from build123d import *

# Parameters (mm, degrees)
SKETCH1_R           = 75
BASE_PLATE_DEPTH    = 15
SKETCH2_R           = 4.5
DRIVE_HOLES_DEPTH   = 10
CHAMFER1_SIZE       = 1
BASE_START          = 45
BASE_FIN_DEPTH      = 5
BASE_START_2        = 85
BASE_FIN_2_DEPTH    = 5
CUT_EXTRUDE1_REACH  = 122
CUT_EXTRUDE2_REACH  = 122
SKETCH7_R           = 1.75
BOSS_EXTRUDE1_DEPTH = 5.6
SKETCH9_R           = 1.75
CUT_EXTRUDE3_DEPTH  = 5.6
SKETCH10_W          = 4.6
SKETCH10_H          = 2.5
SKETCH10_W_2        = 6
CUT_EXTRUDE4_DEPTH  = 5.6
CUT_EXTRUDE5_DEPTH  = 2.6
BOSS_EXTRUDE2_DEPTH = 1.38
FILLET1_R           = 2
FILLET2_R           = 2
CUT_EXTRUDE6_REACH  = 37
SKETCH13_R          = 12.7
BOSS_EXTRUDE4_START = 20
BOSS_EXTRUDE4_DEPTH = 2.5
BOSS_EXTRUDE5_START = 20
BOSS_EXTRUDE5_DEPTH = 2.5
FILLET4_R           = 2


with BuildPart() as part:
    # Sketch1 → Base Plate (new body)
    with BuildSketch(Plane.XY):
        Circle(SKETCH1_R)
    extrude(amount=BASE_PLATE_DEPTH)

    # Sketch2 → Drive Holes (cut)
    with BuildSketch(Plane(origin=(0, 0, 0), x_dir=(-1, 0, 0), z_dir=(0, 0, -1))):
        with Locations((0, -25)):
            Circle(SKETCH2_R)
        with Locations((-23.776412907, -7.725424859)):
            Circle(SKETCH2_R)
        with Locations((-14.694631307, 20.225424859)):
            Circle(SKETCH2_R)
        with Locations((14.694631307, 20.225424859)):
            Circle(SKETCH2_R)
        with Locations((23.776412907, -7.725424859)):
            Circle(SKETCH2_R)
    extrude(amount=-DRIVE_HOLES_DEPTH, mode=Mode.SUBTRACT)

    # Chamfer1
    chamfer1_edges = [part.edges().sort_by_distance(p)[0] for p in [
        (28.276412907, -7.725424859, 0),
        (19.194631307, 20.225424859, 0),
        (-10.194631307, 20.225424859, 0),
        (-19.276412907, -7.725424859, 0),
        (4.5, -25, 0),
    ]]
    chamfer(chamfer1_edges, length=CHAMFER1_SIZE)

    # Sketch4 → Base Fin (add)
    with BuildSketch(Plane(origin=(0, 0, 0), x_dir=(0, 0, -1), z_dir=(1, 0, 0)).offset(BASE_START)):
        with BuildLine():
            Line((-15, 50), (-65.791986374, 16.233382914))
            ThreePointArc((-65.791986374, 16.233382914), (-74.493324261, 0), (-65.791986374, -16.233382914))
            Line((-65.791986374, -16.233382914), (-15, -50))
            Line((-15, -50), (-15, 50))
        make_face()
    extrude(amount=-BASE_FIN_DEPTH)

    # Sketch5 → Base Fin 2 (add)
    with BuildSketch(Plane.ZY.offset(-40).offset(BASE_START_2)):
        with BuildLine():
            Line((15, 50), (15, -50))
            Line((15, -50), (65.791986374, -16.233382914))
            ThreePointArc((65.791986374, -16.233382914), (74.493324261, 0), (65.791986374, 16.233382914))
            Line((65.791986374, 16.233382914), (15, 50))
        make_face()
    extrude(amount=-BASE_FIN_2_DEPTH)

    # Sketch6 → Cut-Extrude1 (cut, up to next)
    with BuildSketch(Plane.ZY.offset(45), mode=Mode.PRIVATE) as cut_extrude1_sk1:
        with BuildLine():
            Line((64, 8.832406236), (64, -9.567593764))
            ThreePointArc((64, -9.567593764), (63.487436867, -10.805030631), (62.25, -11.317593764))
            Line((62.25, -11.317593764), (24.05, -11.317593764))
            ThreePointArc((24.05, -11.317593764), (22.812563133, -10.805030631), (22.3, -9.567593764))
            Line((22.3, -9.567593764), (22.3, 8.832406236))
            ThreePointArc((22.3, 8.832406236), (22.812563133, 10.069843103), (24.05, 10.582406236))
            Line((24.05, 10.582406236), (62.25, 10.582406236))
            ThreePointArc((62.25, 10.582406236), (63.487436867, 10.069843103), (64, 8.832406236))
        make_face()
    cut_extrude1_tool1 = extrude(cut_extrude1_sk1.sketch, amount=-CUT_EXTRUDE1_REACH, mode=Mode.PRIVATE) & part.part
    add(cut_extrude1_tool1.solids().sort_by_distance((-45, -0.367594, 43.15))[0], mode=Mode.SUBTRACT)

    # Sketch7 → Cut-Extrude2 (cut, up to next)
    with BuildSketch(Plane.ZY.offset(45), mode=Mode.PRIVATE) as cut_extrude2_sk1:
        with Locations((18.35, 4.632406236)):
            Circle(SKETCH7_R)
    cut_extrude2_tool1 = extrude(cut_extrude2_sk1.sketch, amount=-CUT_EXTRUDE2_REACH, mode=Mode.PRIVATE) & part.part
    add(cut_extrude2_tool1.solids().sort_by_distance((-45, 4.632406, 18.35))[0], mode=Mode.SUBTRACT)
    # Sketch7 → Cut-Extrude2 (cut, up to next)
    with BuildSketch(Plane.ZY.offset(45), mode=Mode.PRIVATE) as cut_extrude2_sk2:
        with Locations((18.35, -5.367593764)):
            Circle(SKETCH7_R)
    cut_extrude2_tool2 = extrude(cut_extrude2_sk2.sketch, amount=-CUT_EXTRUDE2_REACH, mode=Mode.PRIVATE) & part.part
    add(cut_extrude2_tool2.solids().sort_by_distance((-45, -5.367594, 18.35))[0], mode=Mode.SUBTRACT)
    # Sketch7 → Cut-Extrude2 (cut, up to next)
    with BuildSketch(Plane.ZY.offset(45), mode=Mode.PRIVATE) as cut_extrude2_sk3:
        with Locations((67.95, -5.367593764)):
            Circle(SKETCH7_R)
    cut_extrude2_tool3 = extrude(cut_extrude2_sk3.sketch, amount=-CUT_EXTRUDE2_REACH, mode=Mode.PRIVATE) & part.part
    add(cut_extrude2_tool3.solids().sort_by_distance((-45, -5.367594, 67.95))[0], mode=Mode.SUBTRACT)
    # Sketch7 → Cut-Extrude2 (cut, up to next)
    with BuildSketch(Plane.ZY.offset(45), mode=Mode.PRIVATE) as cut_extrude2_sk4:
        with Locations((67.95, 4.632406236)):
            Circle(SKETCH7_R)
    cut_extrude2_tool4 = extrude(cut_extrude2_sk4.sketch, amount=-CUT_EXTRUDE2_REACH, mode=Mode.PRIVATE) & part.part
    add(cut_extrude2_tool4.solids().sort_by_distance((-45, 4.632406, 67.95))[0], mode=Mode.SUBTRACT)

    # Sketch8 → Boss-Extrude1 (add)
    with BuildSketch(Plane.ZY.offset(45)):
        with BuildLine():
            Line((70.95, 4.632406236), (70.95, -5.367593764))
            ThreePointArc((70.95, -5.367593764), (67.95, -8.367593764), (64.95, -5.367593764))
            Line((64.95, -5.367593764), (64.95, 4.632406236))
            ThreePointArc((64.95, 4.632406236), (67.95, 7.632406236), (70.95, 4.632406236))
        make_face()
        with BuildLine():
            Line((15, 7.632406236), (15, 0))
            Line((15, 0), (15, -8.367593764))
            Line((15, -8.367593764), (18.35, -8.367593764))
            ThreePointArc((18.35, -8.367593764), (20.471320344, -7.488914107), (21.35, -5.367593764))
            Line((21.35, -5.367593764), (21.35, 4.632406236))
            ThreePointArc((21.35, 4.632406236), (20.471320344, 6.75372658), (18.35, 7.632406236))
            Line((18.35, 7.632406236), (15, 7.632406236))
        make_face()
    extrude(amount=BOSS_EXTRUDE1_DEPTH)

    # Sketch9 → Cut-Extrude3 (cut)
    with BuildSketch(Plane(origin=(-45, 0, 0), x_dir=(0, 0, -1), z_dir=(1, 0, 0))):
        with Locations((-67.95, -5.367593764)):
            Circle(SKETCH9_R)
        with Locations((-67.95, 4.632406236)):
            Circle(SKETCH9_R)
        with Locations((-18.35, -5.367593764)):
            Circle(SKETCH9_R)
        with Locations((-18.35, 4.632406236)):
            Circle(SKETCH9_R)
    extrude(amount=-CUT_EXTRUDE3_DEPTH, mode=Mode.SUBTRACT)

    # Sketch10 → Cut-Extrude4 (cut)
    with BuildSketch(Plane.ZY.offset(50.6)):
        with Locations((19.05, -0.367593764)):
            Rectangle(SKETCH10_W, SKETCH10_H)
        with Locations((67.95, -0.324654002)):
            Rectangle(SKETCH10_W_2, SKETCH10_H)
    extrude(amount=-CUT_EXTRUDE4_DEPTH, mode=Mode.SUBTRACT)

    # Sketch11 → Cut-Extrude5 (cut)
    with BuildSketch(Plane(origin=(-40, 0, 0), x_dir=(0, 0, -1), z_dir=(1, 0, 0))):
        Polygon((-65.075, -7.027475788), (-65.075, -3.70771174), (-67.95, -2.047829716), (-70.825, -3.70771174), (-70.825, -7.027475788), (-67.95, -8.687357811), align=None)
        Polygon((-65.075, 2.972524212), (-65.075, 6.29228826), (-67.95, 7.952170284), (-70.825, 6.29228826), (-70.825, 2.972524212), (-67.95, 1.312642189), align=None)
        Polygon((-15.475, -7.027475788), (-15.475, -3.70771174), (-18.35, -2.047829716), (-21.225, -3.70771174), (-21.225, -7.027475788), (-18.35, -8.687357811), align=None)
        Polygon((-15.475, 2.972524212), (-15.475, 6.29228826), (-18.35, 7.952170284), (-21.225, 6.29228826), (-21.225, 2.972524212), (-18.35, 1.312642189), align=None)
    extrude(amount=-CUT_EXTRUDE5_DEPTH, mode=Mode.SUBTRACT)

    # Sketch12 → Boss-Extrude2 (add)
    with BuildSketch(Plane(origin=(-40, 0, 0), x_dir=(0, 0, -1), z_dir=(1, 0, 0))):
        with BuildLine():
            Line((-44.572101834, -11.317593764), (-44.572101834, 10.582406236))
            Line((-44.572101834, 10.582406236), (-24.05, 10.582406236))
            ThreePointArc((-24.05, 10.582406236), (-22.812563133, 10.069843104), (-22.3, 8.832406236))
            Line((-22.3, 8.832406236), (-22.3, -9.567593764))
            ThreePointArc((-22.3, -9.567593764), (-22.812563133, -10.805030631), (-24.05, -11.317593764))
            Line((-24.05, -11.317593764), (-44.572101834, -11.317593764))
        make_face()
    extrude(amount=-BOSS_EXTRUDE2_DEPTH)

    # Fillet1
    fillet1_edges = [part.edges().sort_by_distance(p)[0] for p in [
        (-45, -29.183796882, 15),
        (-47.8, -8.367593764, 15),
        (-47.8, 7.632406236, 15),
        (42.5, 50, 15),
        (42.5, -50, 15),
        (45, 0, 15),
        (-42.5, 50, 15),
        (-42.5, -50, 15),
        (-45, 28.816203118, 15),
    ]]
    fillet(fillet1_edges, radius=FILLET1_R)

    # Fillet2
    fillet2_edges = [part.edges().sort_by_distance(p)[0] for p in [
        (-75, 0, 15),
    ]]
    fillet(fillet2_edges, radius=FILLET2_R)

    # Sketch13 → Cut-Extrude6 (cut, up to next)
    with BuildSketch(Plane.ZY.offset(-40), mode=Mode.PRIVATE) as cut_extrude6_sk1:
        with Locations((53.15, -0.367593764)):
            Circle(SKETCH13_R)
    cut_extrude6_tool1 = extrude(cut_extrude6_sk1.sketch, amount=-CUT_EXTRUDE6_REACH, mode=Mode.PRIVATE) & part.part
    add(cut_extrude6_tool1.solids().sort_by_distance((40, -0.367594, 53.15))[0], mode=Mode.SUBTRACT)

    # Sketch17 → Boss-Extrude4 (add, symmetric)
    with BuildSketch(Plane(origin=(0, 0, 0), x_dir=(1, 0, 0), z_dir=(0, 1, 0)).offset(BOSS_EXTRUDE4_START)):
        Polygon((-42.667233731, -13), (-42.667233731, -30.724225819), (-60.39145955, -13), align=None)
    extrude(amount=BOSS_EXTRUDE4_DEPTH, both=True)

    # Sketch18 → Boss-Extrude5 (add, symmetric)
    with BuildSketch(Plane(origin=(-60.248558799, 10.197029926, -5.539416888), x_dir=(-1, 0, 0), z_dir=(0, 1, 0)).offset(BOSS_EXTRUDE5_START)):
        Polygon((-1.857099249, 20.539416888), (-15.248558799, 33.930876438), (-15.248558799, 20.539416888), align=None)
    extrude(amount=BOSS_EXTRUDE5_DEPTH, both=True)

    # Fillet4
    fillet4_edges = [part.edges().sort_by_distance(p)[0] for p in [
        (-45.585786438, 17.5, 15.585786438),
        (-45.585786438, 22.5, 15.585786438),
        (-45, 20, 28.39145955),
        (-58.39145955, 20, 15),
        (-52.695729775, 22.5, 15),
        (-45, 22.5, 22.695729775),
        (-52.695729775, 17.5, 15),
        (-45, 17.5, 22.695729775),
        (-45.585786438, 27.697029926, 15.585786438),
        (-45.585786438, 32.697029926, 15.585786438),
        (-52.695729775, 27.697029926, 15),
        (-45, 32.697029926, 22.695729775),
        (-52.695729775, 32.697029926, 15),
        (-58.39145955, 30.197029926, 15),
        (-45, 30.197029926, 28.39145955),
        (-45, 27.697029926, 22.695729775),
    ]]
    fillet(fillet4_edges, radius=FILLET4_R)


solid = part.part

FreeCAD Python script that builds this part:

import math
import FreeCAD as App
import Part
import Sketcher
Q = App.Units.Quantity


def edges_at(feature, points):
    """Names of the edges that pass closest to the given points."""
    edges = feature.Shape.Edges
    near = lambda p: min(range(len(edges)), key=lambda i: edges[i].distToShape(Part.Vertex(*p))[0])
    return sorted({f"Edge{near(p) + 1}" for p in points})


def add_polygon(sketch, points):
    """Adds a closed chain of lines whose ends are joined by coincident constraints."""
    first, n = sketch.GeometryCount, len(points)
    for a, b in zip(points, points[1:] + points[:1]):
        sketch.addGeometry(Part.LineSegment(App.Vector(*a, 0), App.Vector(*b, 0)), False)
    for i in range(n):
        sketch.addConstraint(Sketcher.Constraint("Coincident", first + i, 2, first + (i + 1) % n, 1))

doc = App.newDocument("Part")
params = doc.addObject("Spreadsheet::Sheet", "Params")
for row, (alias, value) in enumerate([
    ("sketch1_diameter", "150 mm"),
    ("pad1_length", "15 mm"),
    ("sketch2_diameter", "9 mm"),
    ("pocket1_length", "10 mm"),
    ("chamfer_size", "1 mm"),
    ("sketch3_width", "100 mm"),
    ("pad2_length", "5 mm"),
    ("sketch4_width", "100 mm"),
    ("pad3_length", "5 mm"),
    ("sketch5_radius", "1.75 mm"),
    ("sketch5_width", "18.4 mm"),
    ("sketch5_height", "38.2 mm"),
    ("sketch6_diameter", "3.5 mm"),
    ("sketch7_diameter", "3.5 mm"),
    ("sketch8_diameter", "3.5 mm"),
    ("sketch9_diameter", "3.5 mm"),
    ("sketch10_radius", "3 mm"),
    ("sketch10_width", "10 mm"),
    ("sketch10_height", "3.35 mm"),
    ("pad4_length", "5.6 mm"),
    ("sketch11_diameter", "3.5 mm"),
    ("pocket7_length", "5.6 mm"),
    ("sketch12_height", "6 mm"),
    ("sketch12_width", "2.5 mm"),
    ("sketch12_height2", "4.6 mm"),
    ("pocket8_length", "5.6 mm"),
    ("pocket9_length", "2.6 mm"),
    ("sketch14_radius", "1.75 mm"),
    ("sketch14_width", "21.9 mm"),
    ("pad5_length", "1.38 mm"),
    ("fillet_radius", "2 mm"),
    ("fillet2_radius", "2 mm"),
    ("sketch15_diameter", "25.4 mm"),
    ("pad6_length", "5 mm"),
    ("pad7_length", "5 mm"),
    ("fillet3_radius", "2 mm"),
], start=1):
    params.set(f"A{row}", alias)
    params.set(f"B{row}", "=" + value)
    params.setAlias(f"B{row}", alias)

body = doc.addObject("PartDesign::Body", "Body")

# Sketch on XY plane
sketch1 = body.newObject("Sketcher::SketchObject", "Sketch")
sketch1.AttachmentSupport = (doc.getObject("XY_Plane"), [""])
sketch1.MapMode = "FlatFace"
sketch1.addGeometry(Part.Circle(App.Vector(0, 0, 0), App.Vector(0, 0, 1), 75), False)
sketch1.addConstraint(Sketcher.Constraint("Coincident", 0, 3, -1, 1))
sketch1.addConstraint(Sketcher.Constraint("Diameter", 0, Q("150 mm")))
sketch1.setExpression("Constraints[1]", "Params.sketch1_diameter")
pad1 = body.newObject("PartDesign::Pad", "Pad")
pad1.Profile = sketch1
pad1.setExpression("Length", "Params.pad1_length")

# Sketch on XY plane
sketch2 = body.newObject("Sketcher::SketchObject", "Sketch001")
sketch2.AttachmentSupport = (doc.getObject("XY_Plane"), [""])
sketch2.MapMode = "FlatFace"
sketch2.addGeometry(Part.Circle(App.Vector(0, -25, 0), App.Vector(0, 0, 1), 4.5), False)
sketch2.addGeometry(Part.Circle(App.Vector(23.8, -7.7, 0), App.Vector(0, 0, 1), 4.5), False)
sketch2.addGeometry(Part.Circle(App.Vector(14.7, 20.2, 0), App.Vector(0, 0, 1), 4.5), False)
sketch2.addGeometry(Part.Circle(App.Vector(-14.7, 20.2, 0), App.Vector(0, 0, 1), 4.5), False)
sketch2.addGeometry(Part.Circle(App.Vector(-23.8, -7.7, 0), App.Vector(0, 0, 1), 4.5), False)
sketch2.addConstraint(Sketcher.Constraint("Equal", 0, 1))
sketch2.addConstraint(Sketcher.Constraint("Equal", 1, 2))
sketch2.addConstraint(Sketcher.Constraint("Equal", 2, 3))
sketch2.addConstraint(Sketcher.Constraint("Equal", 3, 4))
sketch2.addConstraint(Sketcher.Constraint("Symmetric", 2, 3, 3, 3, -2))
sketch2.addConstraint(Sketcher.Constraint("Symmetric", 1, 3, 4, 3, -2))
sketch2.addConstraint(Sketcher.Constraint("PointOnObject", 0, 3, -2))
sketch2.addConstraint(Sketcher.Constraint("Diameter", 0, Q("9 mm")))
sketch2.addConstraint(Sketcher.Constraint("DistanceY", 0, 3, -1, 1, Q("25 mm")))
sketch2.addConstraint(Sketcher.Constraint("DistanceX", -1, 1, 2, 3, Q("14.694631 mm")))
sketch2.addConstraint(Sketcher.Constraint("DistanceX", 2, 3, 1, 3, Q("9.081782 mm")))
sketch2.addConstraint(Sketcher.Constraint("DistanceY", 1, 3, 2, 3, Q("27.95085 mm")))
sketch2.addConstraint(Sketcher.Constraint("DistanceY", 1, 3, -1, 1, Q("7.725425 mm")))
sketch2.setExpression("Constraints[7]", "Params.sketch2_diameter")
pocket1 = body.newObject("PartDesign::Pocket", "Pocket")
pocket1.Profile = sketch2
pocket1.setExpression("Length", "Params.pocket1_length")
pocket1.Reversed = True
doc.recompute()

chamfer = body.newObject("PartDesign::Chamfer", "Chamfer")
chamfer.Base = (pocket1, edges_at(pocket1, [
    (28.276, -7.725, 0),
    (19.195, 20.225, 0),
    (-10.195, 20.225, 0),
    (-19.276, -7.725, 0),
    (4.5, -25, 0),
]))
chamfer.setExpression("Size", "Params.chamfer_size")

# Sketch on YZ plane
sketch3 = body.newObject("Sketcher::SketchObject", "Sketch002")
sketch3.AttachmentSupport = (doc.getObject("YZ_Plane"), [""])
sketch3.MapMode = "FlatFace"
sketch3.AttachmentOffset = App.Placement(App.Vector(0, 0, 45), App.Rotation())
sketch3.addGeometry(Part.LineSegment(App.Vector(50, 15, 0), App.Vector(16, 66, 0)), False)
sketch3.addGeometry(Part.ArcOfCircle(Part.Circle(App.Vector(0, 55, 0), App.Vector(0, 0, 1), 19), math.radians(34), math.radians(146)), False)
sketch3.addGeometry(Part.LineSegment(App.Vector(-16, 66, 0), App.Vector(-50, 15, 0)), False)
sketch3.addGeometry(Part.LineSegment(App.Vector(-50, 15, 0), App.Vector(50, 15, 0)), False)
sketch3.addConstraint(Sketcher.Constraint("Tangent", 0, 2, 1, 1))
sketch3.addConstraint(Sketcher.Constraint("Tangent", 1, 2, 2, 1))
sketch3.addConstraint(Sketcher.Constraint("Coincident", 2, 2, 3, 1))
sketch3.addConstraint(Sketcher.Constraint("Coincident", 3, 2, 0, 1))
sketch3.addConstraint(Sketcher.Constraint("Horizontal", 3))
sketch3.addConstraint(Sketcher.Constraint("Symmetric", 0, 2, 1, 2, -2))
sketch3.addConstraint(Sketcher.Constraint("DistanceX", 3, 1, 3, 2, Q("100 mm")))
sketch3.addConstraint(Sketcher.Constraint("DistanceY", -1, 1, 1, 3, Q("55 mm")))
sketch3.addConstraint(Sketcher.Constraint("DistanceY", -1, 1, 2, 2, Q("15 mm")))
sketch3.addConstraint(Sketcher.Constraint("Radius", 1, Q("19.493324 mm")))
sketch3.setExpression("Constraints[6]", "Params.sketch3_width")
pad2 = body.newObject("PartDesign::Pad", "Pad001")
pad2.Profile = sketch3
pad2.setExpression("Length", "Params.pad2_length")
pad2.Reversed = True

# Sketch on YZ plane
sketch4 = body.newObject("Sketcher::SketchObject", "Sketch003")
sketch4.AttachmentSupport = (doc.getObject("YZ_Plane"), [""])
sketch4.MapMode = "FlatFace"
sketch4.AttachmentOffset = App.Placement(App.Vector(0, 0, -45), App.Rotation())
sketch4.addGeometry(Part.LineSegment(App.Vector(50, 15, 0), App.Vector(-50, 15, 0)), False)
sketch4.addGeometry(Part.LineSegment(App.Vector(-50, 15, 0), App.Vector(-16, 66, 0)), False)
sketch4.addGeometry(Part.ArcOfCircle(Part.Circle(App.Vector(0, 55, 0), App.Vector(0, 0, 1), 19), math.radians(34), math.radians(146)), False)
sketch4.addGeometry(Part.LineSegment(App.Vector(16, 66, 0), App.Vector(50, 15, 0)), False)
sketch4.addConstraint(Sketcher.Constraint("Coincident", 0, 2, 1, 1))
sketch4.addConstraint(Sketcher.Constraint("Tangent", 1, 2, 2, 2))
sketch4.addConstraint(Sketcher.Constraint("Tangent", 2, 1, 3, 1))
sketch4.addConstraint(Sketcher.Constraint("Coincident", 3, 2, 0, 1))
sketch4.addConstraint(Sketcher.Constraint("Horizontal", 0))
sketch4.addConstraint(Sketcher.Constraint("Symmetric", 1, 2, 2, 1, -2))
sketch4.addConstraint(Sketcher.Constraint("DistanceX", 0, 2, 0, 1, Q("100 mm")))
sketch4.addConstraint(Sketcher.Constraint("DistanceY", -1, 1, 2, 3, Q("55 mm")))
sketch4.addConstraint(Sketcher.Constraint("DistanceY", -1, 1, 0, 2, Q("15 mm")))
sketch4.addConstraint(Sketcher.Constraint("Radius", 2, Q("19.493324 mm")))
sketch4.setExpression("Constraints[6]", "Params.sketch4_width")
pad3 = body.newObject("PartDesign::Pad", "Pad002")
pad3.Profile = sketch4
pad3.setExpression("Length", "Params.pad3_length")

# Sketch on YZ plane
sketch5 = body.newObject("Sketcher::SketchObject", "Sketch004")
sketch5.AttachmentSupport = (doc.getObject("YZ_Plane"), [""])
sketch5.MapMode = "FlatFace"
sketch5.AttachmentOffset = App.Placement(App.Vector(0, 0, -45), App.Rotation())
sketch5.addGeometry(Part.LineSegment(App.Vector(-9.6, 64, 0), App.Vector(8.8, 64, 0)), False)
sketch5.addGeometry(Part.ArcOfCircle(Part.Circle(App.Vector(8.8, 62.2, 0), App.Vector(0, 0, 1), 1.8), math.radians(0), math.radians(90)), False)
sketch5.addGeometry(Part.LineSegment(App.Vector(10.6, 62.2, 0), App.Vector(10.6, 24.1, 0)), False)
sketch5.addGeometry(Part.ArcOfCircle(Part.Circle(App.Vector(8.8, 24.1, 0), App.Vector(0, 0, 1), 1.8), math.radians(-90), math.radians(0)), False)
sketch5.addGeometry(Part.LineSegment(App.Vector(8.8, 22.3, 0), App.Vector(-9.6, 22.3, 0)), False)
sketch5.addGeometry(Part.ArcOfCircle(Part.Circle(App.Vector(-9.6, 24.1, 0), App.Vector(0, 0, 1), 1.8), math.radians(180), math.radians(270)), False)
sketch5.addGeometry(Part.LineSegment(App.Vector(-11.3, 24.1, 0), App.Vector(-11.3, 62.2, 0)), False)
sketch5.addGeometry(Part.ArcOfCircle(Part.Circle(App.Vector(-9.6, 62.2, 0), App.Vector(0, 0, 1), 1.8), math.radians(90), math.radians(180)), False)
sketch5.addConstraint(Sketcher.Constraint("Tangent", 0, 2, 1, 2))
sketch5.addConstraint(Sketcher.Constraint("Tangent", 1, 1, 2, 1))
sketch5.addConstraint(Sketcher.Constraint("Tangent", 2, 2, 3, 2))
sketch5.addConstraint(Sketcher.Constraint("Tangent", 3, 1, 4, 1))
sketch5.addConstraint(Sketcher.Constraint("Tangent", 4, 2, 5, 2))
sketch5.addConstraint(Sketcher.Constraint("Tangent", 5, 1, 6, 1))
sketch5.addConstraint(Sketcher.Constraint("Tangent", 6, 2, 7, 2))
sketch5.addConstraint(Sketcher.Constraint("Tangent", 7, 1, 0, 1))
sketch5.addConstraint(Sketcher.Constraint("Horizontal", 0))
sketch5.addConstraint(Sketcher.Constraint("Vertical", 2))
sketch5.addConstraint(Sketcher.Constraint("Horizontal", 4))
sketch5.addConstraint(Sketcher.Constraint("Vertical", 6))
sketch5.addConstraint(Sketcher.Constraint("Equal", 1, 3))
sketch5.addConstraint(Sketcher.Constraint("Equal", 3, 5))
sketch5.addConstraint(Sketcher.Constraint("Equal", 5, 7))
sketch5.addConstraint(Sketcher.Constraint("Radius", 1, Q("1.75 mm")))
sketch5.addConstraint(Sketcher.Constraint("DistanceX", 0, 1, 0, 2, Q("18.4 mm")))
sketch5.addConstraint(Sketcher.Constraint("DistanceY", 2, 2, 2, 1, Q("38.2 mm")))
sketch5.addConstraint(Sketcher.Constraint("DistanceY", -1, 1, 0, 2, Q("64 mm")))
sketch5.addConstraint(Sketcher.Constraint("DistanceX", -1, 1, 1, 3, Q("8.832406 mm")))
sketch5.setExpression("Constraints[15]", "Params.sketch5_radius")
sketch5.setExpression("Constraints[16]", "Params.sketch5_width")
sketch5.setExpression("Constraints[17]", "Params.sketch5_height")
pocket2 = body.newObject("PartDesign::Pocket", "Pocket001")
pocket2.Profile = sketch5
pocket2.Type = "UpToFirst"
pocket2.Reversed = True

# Sketch on YZ plane
sketch6 = body.newObject("Sketcher::SketchObject", "Sketch005")
sketch6.AttachmentSupport = (doc.getObject("YZ_Plane"), [""])
sketch6.MapMode = "FlatFace"
sketch6.AttachmentOffset = App.Placement(App.Vector(0, 0, -45), App.Rotation())
sketch6.addGeometry(Part.Circle(App.Vector(4.6, 18.4, 0), App.Vector(0, 0, 1), 1.8), False)
sketch6.addConstraint(Sketcher.Constraint("Diameter", 0, Q("3.5 mm")))
sketch6.addConstraint(Sketcher.Constraint("DistanceY", -1, 1, 0, 3, Q("18.35 mm")))
sketch6.addConstraint(Sketcher.Constraint("DistanceX", -1, 1, 0, 3, Q("4.632406 mm")))
sketch6.setExpression("Constraints[0]", "Params.sketch6_diameter")
pocket3 = body.newObject("PartDesign::Pocket", "Pocket002")
pocket3.Profile = sketch6
pocket3.Type = "UpToFirst"
pocket3.Reversed = True

# Sketch on YZ plane
sketch7 = body.newObject("Sketcher::SketchObject", "Sketch006")
sketch7.AttachmentSupport = (doc.getObject("YZ_Plane"), [""])
sketch7.MapMode = "FlatFace"
sketch7.AttachmentOffset = App.Placement(App.Vector(0, 0, -45), App.Rotation())
sketch7.addGeometry(Part.Circle(App.Vector(-5.4, 18.4, 0), App.Vector(0, 0, 1), 1.8), False)
sketch7.addConstraint(Sketcher.Constraint("Diameter", 0, Q("3.5 mm")))
sketch7.addConstraint(Sketcher.Constraint("DistanceY", -1, 1, 0, 3, Q("18.35 mm")))
sketch7.addConstraint(Sketcher.Constraint("DistanceX", 0, 3, -1, 1, Q("5.367594 mm")))
sketch7.setExpression("Constraints[0]", "Params.sketch7_diameter")
pocket4 = body.newObject("PartDesign::Pocket", "Pocket003")
pocket4.Profile = sketch7
pocket4.Type = "UpToFirst"
pocket4.Reversed = True

# Sketch on YZ plane
sketch8 = body.newObject("Sketcher::SketchObject", "Sketch007")
sketch8.AttachmentSupport = (doc.getObject("YZ_Plane"), [""])
sketch8.MapMode = "FlatFace"
sketch8.AttachmentOffset = App.Placement(App.Vector(0, 0, -45), App.Rotation())
sketch8.addGeometry(Part.Circle(App.Vector(-5.4, 68, 0), App.Vector(0, 0, 1), 1.8), False)
sketch8.addConstraint(Sketcher.Constraint("Diameter", 0, Q("3.5 mm")))
sketch8.addConstraint(Sketcher.Constraint("DistanceY", -1, 1, 0, 3, Q("67.95 mm")))
sketch8.addConstraint(Sketcher.Constraint("DistanceX", 0, 3, -1, 1, Q("5.367594 mm")))
sketch8.setExpression("Constraints[0]", "Params.sketch8_diameter")
pocket5 = body.newObject("PartDesign::Pocket", "Pocket004")
pocket5.Profile = sketch8
pocket5.Type = "UpToFirst"
pocket5.Reversed = True

# Sketch on YZ plane
sketch9 = body.newObject("Sketcher::SketchObject", "Sketch008")
sketch9.AttachmentSupport = (doc.getObject("YZ_Plane"), [""])
sketch9.MapMode = "FlatFace"
sketch9.AttachmentOffset = App.Placement(App.Vector(0, 0, -45), App.Rotation())
sketch9.addGeometry(Part.Circle(App.Vector(4.6, 68, 0), App.Vector(0, 0, 1), 1.8), False)
sketch9.addConstraint(Sketcher.Constraint("Diameter", 0, Q("3.5 mm")))
sketch9.addConstraint(Sketcher.Constraint("DistanceY", -1, 1, 0, 3, Q("67.95 mm")))
sketch9.addConstraint(Sketcher.Constraint("DistanceX", -1, 1, 0, 3, Q("4.632406 mm")))
sketch9.setExpression("Constraints[0]", "Params.sketch9_diameter")
pocket6 = body.newObject("PartDesign::Pocket", "Pocket005")
pocket6.Profile = sketch9
pocket6.Type = "UpToFirst"
pocket6.Reversed = True

# Sketch on YZ plane
sketch10 = body.newObject("Sketcher::SketchObject", "Sketch009")
sketch10.AttachmentSupport = (doc.getObject("YZ_Plane"), [""])
sketch10.MapMode = "FlatFace"
sketch10.AttachmentOffset = App.Placement(App.Vector(0, 0, -45), App.Rotation())
sketch10.addGeometry(Part.LineSegment(App.Vector(-5.4, 71, 0), App.Vector(4.6, 71, 0)), False)
sketch10.addGeometry(Part.ArcOfCircle(Part.Circle(App.Vector(4.6, 68, 0), App.Vector(0, 0, 1), 3), math.radians(-90), math.radians(90)), False)
sketch10.addGeometry(Part.LineSegment(App.Vector(4.6, 65, 0), App.Vector(-5.4, 65, 0)), False)
sketch10.addGeometry(Part.ArcOfCircle(Part.Circle(App.Vector(-5.4, 68, 0), App.Vector(0, 0, 1), 3), math.radians(90), math.radians(270)), False)
sketch10.addGeometry(Part.LineSegment(App.Vector(7.6, 15, 0), App.Vector(-8.4, 15, 0)), False)
sketch10.addGeometry(Part.LineSegment(App.Vector(-8.4, 15, 0), App.Vector(-8.4, 18.4, 0)), False)
sketch10.addGeometry(Part.ArcOfCircle(Part.Circle(App.Vector(-5.4, 18.4, 0), App.Vector(0, 0, 1), 3), math.radians(90), math.radians(180)), False)
sketch10.addGeometry(Part.LineSegment(App.Vector(-5.4, 21.4, 0), App.Vector(4.6, 21.4, 0)), False)
sketch10.addGeometry(Part.ArcOfCircle(Part.Circle(App.Vector(4.6, 18.4, 0), App.Vector(0, 0, 1), 3), math.radians(0), math.radians(90)), False)
sketch10.addGeometry(Part.LineSegment(App.Vector(7.6, 18.4, 0), App.Vector(7.6, 15, 0)), False)
sketch10.addConstraint(Sketcher.Constraint("Tangent", 0, 2, 1, 2))
sketch10.addConstraint(Sketcher.Constraint("Tangent", 1, 1, 2, 1))
sketch10.addConstraint(Sketcher.Constraint("Tangent", 2, 2, 3, 2))
sketch10.addConstraint(Sketcher.Constraint("Tangent", 3, 1, 0, 1))
sketch10.addConstraint(Sketcher.Constraint("Coincident", 4, 2, 5, 1))
sketch10.addConstraint(Sketcher.Constraint("Tangent", 5, 2, 6, 2))
sketch10.addConstraint(Sketcher.Constraint("Tangent", 6, 1, 7, 1))
sketch10.addConstraint(Sketcher.Constraint("Tangent", 7, 2, 8, 2))
sketch10.addConstraint(Sketcher.Constraint("Tangent", 8, 1, 9, 1))
sketch10.addConstraint(Sketcher.Constraint("Coincident", 9, 2, 4, 1))
sketch10.addConstraint(Sketcher.Constraint("Horizontal", 0))
sketch10.addConstraint(Sketcher.Constraint("Horizontal", 2))
sketch10.addConstraint(Sketcher.Constraint("Horizontal", 4))
sketch10.addConstraint(Sketcher.Constraint("Vertical", 5))
sketch10.addConstraint(Sketcher.Constraint("Horizontal", 7))
sketch10.addConstraint(Sketcher.Constraint("Vertical", 9))
sketch10.addConstraint(Sketcher.Constraint("Equal", 3, 6))
sketch10.addConstraint(Sketcher.Constraint("Equal", 6, 8))
sketch10.addConstraint(Sketcher.Constraint("Vertical", 3, 3, 6, 3))
sketch10.addConstraint(Sketcher.Constraint("Vertical", 1, 3, 8, 3))
sketch10.addConstraint(Sketcher.Constraint("Radius", 1, Q("3 mm")))
sketch10.addConstraint(Sketcher.Constraint("DistanceX", 0, 1, 0, 2, Q("10 mm")))
sketch10.addConstraint(Sketcher.Constraint("DistanceY", -1, 1, 4, 2, Q("15 mm")))
sketch10.addConstraint(Sketcher.Constraint("DistanceY", 5, 1, 5, 2, Q("3.35 mm")))
sketch10.addConstraint(Sketcher.Constraint("DistanceY", 6, 3, 3, 3, Q("49.6 mm")))
sketch10.addConstraint(Sketcher.Constraint("DistanceX", -1, 1, 1, 3, Q("4.632406 mm")))
sketch10.setExpression("Constraints[20]", "Params.sketch10_radius")
sketch10.setExpression("Constraints[21]", "Params.sketch10_width")
sketch10.setExpression("Constraints[23]", "Params.sketch10_height")
pad4 = body.newObject("PartDesign::Pad", "Pad003")
pad4.Profile = sketch10
pad4.setExpression("Length", "Params.pad4_length")
pad4.Reversed = True

# Sketch on YZ plane
sketch11 = body.newObject("Sketcher::SketchObject", "Sketch010")
sketch11.AttachmentSupport = (doc.getObject("YZ_Plane"), [""])
sketch11.MapMode = "FlatFace"
sketch11.AttachmentOffset = App.Placement(App.Vector(0, 0, -45), App.Rotation())
sketch11.addGeometry(Part.Circle(App.Vector(-5.4, 68, 0), App.Vector(0, 0, 1), 1.8), False)
sketch11.addGeometry(Part.Circle(App.Vector(4.6, 68, 0), App.Vector(0, 0, 1), 1.8), False)
sketch11.addGeometry(Part.Circle(App.Vector(-5.4, 18.4, 0), App.Vector(0, 0, 1), 1.8), False)
sketch11.addGeometry(Part.Circle(App.Vector(4.6, 18.4, 0), App.Vector(0, 0, 1), 1.8), False)
sketch11.addConstraint(Sketcher.Constraint("Equal", 0, 1))
sketch11.addConstraint(Sketcher.Constraint("Equal", 1, 2))
sketch11.addConstraint(Sketcher.Constraint("Equal", 2, 3))
sketch11.addConstraint(Sketcher.Constraint("Horizontal", 0, 3, 1, 3))
sketch11.addConstraint(Sketcher.Constraint("Horizontal", 2, 3, 3, 3))
sketch11.addConstraint(Sketcher.Constraint("Vertical", 0, 3, 2, 3))
sketch11.addConstraint(Sketcher.Constraint("Vertical", 1, 3, 3, 3))
sketch11.addConstraint(Sketcher.Constraint("Diameter", 0, Q("3.5 mm")))
sketch11.addConstraint(Sketcher.Constraint("DistanceX", 0, 3, 1, 3, Q("10 mm")))
sketch11.addConstraint(Sketcher.Constraint("DistanceY", 2, 3, 0, 3, Q("49.6 mm")))
sketch11.addConstraint(Sketcher.Constraint("DistanceY", -1, 1, 0, 3, Q("67.95 mm")))
sketch11.addConstraint(Sketcher.Constraint("DistanceX", 0, 3, -1, 1, Q("5.367594 mm")))
sketch11.setExpression("Constraints[7]", "Params.sketch11_diameter")
pocket7 = body.newObject("PartDesign::Pocket", "Pocket006")
pocket7.Profile = sketch11
pocket7.setExpression("Length", "Params.pocket7_length")

# Sketch on YZ plane
sketch12 = body.newObject("Sketcher::SketchObject", "Sketch011")
sketch12.AttachmentSupport = (doc.getObject("YZ_Plane"), [""])
sketch12.MapMode = "FlatFace"
sketch12.AttachmentOffset = App.Placement(App.Vector(0, 0, -50.6), App.Rotation())
add_polygon(sketch12, [(0.9, 16.8), (-1.6, 16.8), (-1.6, 21.4), (0.9, 21.4)])  # lines 0-3
add_polygon(sketch12, [(0.9, 65), (-1.6, 65), (-1.6, 71), (0.9, 71)])  # lines 4-7
sketch12.addConstraint(Sketcher.Constraint("Horizontal", 0))
sketch12.addConstraint(Sketcher.Constraint("Vertical", 1))
sketch12.addConstraint(Sketcher.Constraint("Horizontal", 2))
sketch12.addConstraint(Sketcher.Constraint("Vertical", 3))
sketch12.addConstraint(Sketcher.Constraint("Horizontal", 4))
sketch12.addConstraint(Sketcher.Constraint("Vertical", 5))
sketch12.addConstraint(Sketcher.Constraint("Horizontal", 6))
sketch12.addConstraint(Sketcher.Constraint("Vertical", 7))
sketch12.addConstraint(Sketcher.Constraint("Equal", 2, 4))
sketch12.addConstraint(Sketcher.Constraint("DistanceY", 5, 1, 5, 2, Q("6 mm")))
sketch12.addConstraint(Sketcher.Constraint("DistanceX", 0, 2, 0, 1, Q("2.5 mm")))
sketch12.addConstraint(Sketcher.Constraint("DistanceY", 1, 1, 1, 2, Q("4.6 mm")))
sketch12.addConstraint(Sketcher.Constraint("DistanceY", 1, 2, 4, 2, Q("43.6 mm")))
sketch12.addConstraint(Sketcher.Constraint("DistanceY", -1, 1, 0, 2, Q("16.75 mm")))
sketch12.addConstraint(Sketcher.Constraint("DistanceX", 1, 2, 4, 2, Q("0.04294 mm")))
sketch12.addConstraint(Sketcher.Constraint("DistanceX", 0, 2, -1, 1, Q("1.617594 mm")))
sketch12.setExpression("Constraints[17]", "Params.sketch12_height")
sketch12.setExpression("Constraints[18]", "Params.sketch12_width")
sketch12.setExpression("Constraints[19]", "Params.sketch12_height2")
pocket8 = body.newObject("PartDesign::Pocket", "Pocket007")
pocket8.Profile = sketch12
pocket8.setExpression("Length", "Params.pocket8_length")
pocket8.Reversed = True

# Sketch on YZ plane
sketch13 = body.newObject("Sketcher::SketchObject", "Sketch012")
sketch13.AttachmentSupport = (doc.getObject("YZ_Plane"), [""])
sketch13.MapMode = "FlatFace"
sketch13.AttachmentOffset = App.Placement(App.Vector(0, 0, -40), App.Rotation())
add_polygon(sketch13, [(-7, 65.1), (-3.7, 65.1), (-2, 68), (-3.7, 70.8), (-7, 70.8), (-8.7, 68)])  # lines 0-5
add_polygon(sketch13, [(3, 65.1), (6.3, 65.1), (8, 68), (6.3, 70.8), (3, 70.8), (1.3, 68)])  # lines 6-11
add_polygon(sketch13, [(-7, 15.5), (-3.7, 15.5), (-2, 18.4), (-3.7, 21.2), (-7, 21.2), (-8.7, 18.4)])  # lines 12-17
add_polygon(sketch13, [(3, 15.5), (6.3, 15.5), (8, 18.4), (6.3, 21.2), (3, 21.2), (1.3, 18.4)])  # lines 18-23
sketch13.addConstraint(Sketcher.Constraint("Horizontal", 0))
sketch13.addConstraint(Sketcher.Constraint("Horizontal", 3))
sketch13.addConstraint(Sketcher.Constraint("Horizontal", 6))
sketch13.addConstraint(Sketcher.Constraint("Horizontal", 9))
sketch13.addConstraint(Sketcher.Constraint("Horizontal", 12))
sketch13.addConstraint(Sketcher.Constraint("Horizontal", 15))
sketch13.addConstraint(Sketcher.Constraint("Horizontal", 18))
sketch13.addConstraint(Sketcher.Constraint("Horizontal", 21))
sketch13.addConstraint(Sketcher.Constraint("Parallel", 1, 4))
sketch13.addConstraint(Sketcher.Constraint("Parallel", 2, 5))
sketch13.addConstraint(Sketcher.Constraint("Parallel", 4, 7))
sketch13.addConstraint(Sketcher.Constraint("Parallel", 5, 8))
sketch13.addConstraint(Sketcher.Constraint("Parallel", 7, 10))
sketch13.addConstraint(Sketcher.Constraint("Parallel", 8, 11))
sketch13.addConstraint(Sketcher.Constraint("Parallel", 10, 13))
sketch13.addConstraint(Sketcher.Constraint("Parallel", 11, 14))
sketch13.addConstraint(Sketcher.Constraint("Parallel", 13, 16))
sketch13.addConstraint(Sketcher.Constraint("Parallel", 14, 17))
sketch13.addConstraint(Sketcher.Constraint("Parallel", 16, 19))
sketch13.addConstraint(Sketcher.Constraint("Parallel", 17, 20))
sketch13.addConstraint(Sketcher.Constraint("Parallel", 19, 22))
sketch13.addConstraint(Sketcher.Constraint("Parallel", 20, 23))
sketch13.addConstraint(Sketcher.Constraint("Horizontal", 1, 2, 4, 2))
sketch13.addConstraint(Sketcher.Constraint("Horizontal", 5, 2, 6, 2))
sketch13.addConstraint(Sketcher.Constraint("Horizontal", 4, 2, 7, 2))
sketch13.addConstraint(Sketcher.Constraint("Horizontal", 3, 2, 8, 2))
sketch13.addConstraint(Sketcher.Constraint("Horizontal", 7, 2, 10, 2))
sketch13.addConstraint(Sketcher.Constraint("Horizontal", 13, 2, 16, 2))
sketch13.addConstraint(Sketcher.Constraint("Horizontal", 17, 2, 18, 2))
sketch13.addConstraint(Sketcher.Constraint("Horizontal", 16, 2, 19, 2))
sketch13.addConstraint(Sketcher.Constraint("Horizontal", 15, 2, 20, 2))
sketch13.addConstraint(Sketcher.Constraint("Horizontal", 19, 2, 22, 2))
sketch13.addConstraint(Sketcher.Constraint("Vertical", 0, 2, 2, 2))
sketch13.addConstraint(Sketcher.Constraint("Vertical", 3, 2, 5, 2))
sketch13.addConstraint(Sketcher.Constraint("Vertical", 2, 2, 12, 2))
sketch13.addConstraint(Sketcher.Constraint("Vertical", 1, 2, 13, 2))
sketch13.addConstraint(Sketcher.Constraint("Vertical", 12, 2, 14, 2))
sketch13.addConstraint(Sketcher.Constraint("Vertical", 5, 2, 15, 2))
sketch13.addConstraint(Sketcher.Constraint("Vertical", 8, 2, 18, 2))
sketch13.addConstraint(Sketcher.Constraint("Vertical", 11, 2, 21, 2))
sketch13.addConstraint(Sketcher.Constraint("Equal", 3, 6))
sketch13.addConstraint(Sketcher.Constraint("Angle", 1, Q("60 deg")))
sketch13.addConstraint(Sketcher.Constraint("DistanceX", 0, 2, 6, 2, Q("10 mm")))
sketch13.addConstraint(Sketcher.Constraint("DistanceY", 12, 2, 0, 2, Q("49.6 mm")))
sketch13.addConstraint(Sketcher.Constraint("DistanceY", -1, 1, 1, 2, Q("67.95 mm")))
sketch13.addConstraint(Sketcher.Constraint("DistanceY", 0, 2, 2, 2, Q("5.75 mm")))
sketch13.addConstraint(Sketcher.Constraint("DistanceX", 0, 1, 0, 2, Q("3.319764 mm")))
sketch13.addConstraint(Sketcher.Constraint("DistanceX", 0, 2, -1, 1, Q("3.707712 mm")))
pocket9 = body.newObject("PartDesign::Pocket", "Pocket008")
pocket9.Profile = sketch13
pocket9.setExpression("Length", "Params.pocket9_length")

# Sketch on YZ plane
sketch14 = body.newObject("Sketcher::SketchObject", "Sketch013")
sketch14.AttachmentSupport = (doc.getObject("YZ_Plane"), [""])
sketch14.MapMode = "FlatFace"
sketch14.AttachmentOffset = App.Placement(App.Vector(0, 0, -40), App.Rotation())
sketch14.addGeometry(Part.LineSegment(App.Vector(10.6, 44.6, 0), App.Vector(-11.3, 44.6, 0)), False)
sketch14.addGeometry(Part.LineSegment(App.Vector(-11.3, 44.6, 0), App.Vector(-11.3, 24.1, 0)), False)
sketch14.addGeometry(Part.ArcOfCircle(Part.Circle(App.Vector(-9.6, 24.1, 0), App.Vector(0, 0, 1), 1.8), math.radians(180), math.radians(270)), False)
sketch14.addGeometry(Part.LineSegment(App.Vector(-9.6, 22.3, 0), App.Vector(8.8, 22.3, 0)), False)
sketch14.addGeometry(Part.ArcOfCircle(Part.Circle(App.Vector(8.8, 24, 0), App.Vector(0, 0, 1), 1.7), math.radians(-90), math.radians(0)), False)
sketch14.addGeometry(Part.LineSegment(App.Vector(10.6, 24.1, 0), App.Vector(10.6, 44.6, 0)), False)
sketch14.addConstraint(Sketcher.Constraint("Coincident", 0, 2, 1, 1))
sketch14.addConstraint(Sketcher.Constraint("Tangent", 1, 2, 2, 1))
sketch14.addConstraint(Sketcher.Constraint("Tangent", 2, 2, 3, 1))
sketch14.addConstraint(Sketcher.Constraint("Tangent", 3, 2, 4, 1))
sketch14.addConstraint(Sketcher.Constraint("Tangent", 4, 2, 5, 1))
sketch14.addConstraint(Sketcher.Constraint("Coincident", 5, 2, 0, 1))
sketch14.addConstraint(Sketcher.Constraint("Horizontal", 0))
sketch14.addConstraint(Sketcher.Constraint("Vertical", 1))
sketch14.addConstraint(Sketcher.Constraint("Horizontal", 3))
sketch14.addConstraint(Sketcher.Constraint("Vertical", 5))
sketch14.addConstraint(Sketcher.Constraint("Equal", 2, 4))
sketch14.addConstraint(Sketcher.Constraint("Radius", 2, Q("1.75 mm")))
sketch14.addConstraint(Sketcher.Constraint("DistanceX", 0, 2, 0, 1, Q("21.9 mm")))
sketch14.addConstraint(Sketcher.Constraint("DistanceY", -1, 1, 2, 2, Q("22.3 mm")))
sketch14.addConstraint(Sketcher.Constraint("DistanceY", 1, 2, 1, 1, Q("20.522102 mm")))
sketch14.addConstraint(Sketcher.Constraint("DistanceX", 2, 3, -1, 1, Q("9.567594 mm")))
sketch14.setExpression("Constraints[11]", "Params.sketch14_radius")
sketch14.setExpression("Constraints[12]", "Params.sketch14_width")
pad5 = body.newObject("PartDesign::Pad", "Pad004")
pad5.Profile = sketch14
pad5.setExpression("Length", "Params.pad5_length")
pad5.Reversed = True
doc.recompute()

fillet = body.newObject("PartDesign::Fillet", "Fillet")
fillet.Base = (pad5, edges_at(pad5, [
    (-45, -29.184, 15),
    (-47.8, -8.368, 15),
    (-47.8, 7.632, 15),
    (42.5, 50, 15),
    (42.5, -50, 15),
    (45, 0, 15),
    (-42.5, 50, 15),
    (-42.5, -50, 15),
    (-45, 28.816, 15),
]))
fillet.setExpression("Radius", "Params.fillet_radius")
doc.recompute()

fillet2 = body.newObject("PartDesign::Fillet", "Fillet001")
fillet2.Base = (fillet, edges_at(fillet, [(-75, 0, 15)]))
fillet2.setExpression("Radius", "Params.fillet2_radius")

# Sketch on YZ plane
sketch15 = body.newObject("Sketcher::SketchObject", "Sketch014")
sketch15.AttachmentSupport = (doc.getObject("YZ_Plane"), [""])
sketch15.MapMode = "FlatFace"
sketch15.AttachmentOffset = App.Placement(App.Vector(0, 0, 40), App.Rotation())
sketch15.addGeometry(Part.Circle(App.Vector(0, 53, 0), App.Vector(0, 0, 1), 13), False)
sketch15.addConstraint(Sketcher.Constraint("Diameter", 0, Q("25.4 mm")))
sketch15.addConstraint(Sketcher.Constraint("DistanceY", -1, 1, 0, 3, Q("53.15 mm")))
sketch15.addConstraint(Sketcher.Constraint("DistanceX", 0, 3, -1, 1, Q("0.367594 mm")))
sketch15.setExpression("Constraints[0]", "Params.sketch15_diameter")
pocket10 = body.newObject("PartDesign::Pocket", "Pocket009")
pocket10.Profile = sketch15
pocket10.Type = "UpToFirst"
pocket10.Reversed = True

# Sketch on XZ plane
sketch16 = body.newObject("Sketcher::SketchObject", "Sketch015")
sketch16.AttachmentSupport = (doc.getObject("XZ_Plane"), [""])
sketch16.MapMode = "FlatFace"
sketch16.AttachmentOffset = App.Placement(App.Vector(0, 0, -20), App.Rotation())
add_polygon(sketch16, [(-43, 31), (-43, 13), (-60, 13)])  # lines 0-2
sketch16.addConstraint(Sketcher.Constraint("Vertical", 0))
sketch16.addConstraint(Sketcher.Constraint("Horizontal", 1))
sketch16.addConstraint(Sketcher.Constraint("Equal", 1, 0))
sketch16.addConstraint(Sketcher.Constraint("DistanceY", -1, 1, 0, 2, Q("13 mm")))
sketch16.addConstraint(Sketcher.Constraint("Distance", 2, Q("25.065841 mm")))
sketch16.addConstraint(Sketcher.Constraint("DistanceX", 1, 2, -1, 1, Q("60.39146 mm")))
pad6 = body.newObject("PartDesign::Pad", "Pad005")
pad6.Profile = sketch16
pad6.setExpression("Length", "Params.pad6_length")
pad6.Midplane = True

# Sketch on XZ plane
sketch17 = body.newObject("Sketcher::SketchObject", "Sketch016")
sketch17.AttachmentSupport = (doc.getObject("XZ_Plane"), [""])
sketch17.MapMode = "FlatFace"
sketch17.AttachmentOffset = App.Placement(App.Vector(0, 0, -30.19703), App.Rotation())
add_polygon(sketch17, [(-58, 15), (-45, 28), (-45, 15)])  # lines 0-2
sketch17.addConstraint(Sketcher.Constraint("Vertical", 1))
sketch17.addConstraint(Sketcher.Constraint("Horizontal", 2))
sketch17.addConstraint(Sketcher.Constraint("Equal", 2, 1))
sketch17.addConstraint(Sketcher.Constraint("DistanceX", 0, 2, -1, 1, Q("45 mm")))
sketch17.addConstraint(Sketcher.Constraint("DistanceY", -1, 1, 1, 2, Q("15 mm")))
sketch17.addConstraint(Sketcher.Constraint("DistanceX", 2, 2, 2, 1, Q("13.39146 mm")))
pad7 = body.newObject("PartDesign::Pad", "Pad006")
pad7.Profile = sketch17
pad7.setExpression("Length", "Params.pad7_length")
pad7.Midplane = True
doc.recompute()

fillet3 = body.newObject("PartDesign::Fillet", "Fillet002")
fillet3.Base = (pad7, edges_at(pad7, [
    (-45.586, 17.5, 15.586),
    (-45.586, 22.5, 15.586),
    (-45, 20, 28.391),
    (-58.391, 20, 15),
    (-52.696, 22.5, 15),
    (-45, 22.5, 22.696),
    (-52.696, 17.5, 15),
    (-45, 17.5, 22.696),
    (-45.586, 27.697, 15.586),
    (-45.586, 32.697, 15.586),
    (-52.696, 27.697, 15),
    (-45, 32.697, 22.696),
    (-52.696, 32.697, 15),
    (-58.391, 30.197, 15),
    (-45, 30.197, 28.391),
    (-45, 27.697, 22.696),
]))
fillet3.setExpression("Radius", "Params.fillet3_radius")

doc.recompute()
